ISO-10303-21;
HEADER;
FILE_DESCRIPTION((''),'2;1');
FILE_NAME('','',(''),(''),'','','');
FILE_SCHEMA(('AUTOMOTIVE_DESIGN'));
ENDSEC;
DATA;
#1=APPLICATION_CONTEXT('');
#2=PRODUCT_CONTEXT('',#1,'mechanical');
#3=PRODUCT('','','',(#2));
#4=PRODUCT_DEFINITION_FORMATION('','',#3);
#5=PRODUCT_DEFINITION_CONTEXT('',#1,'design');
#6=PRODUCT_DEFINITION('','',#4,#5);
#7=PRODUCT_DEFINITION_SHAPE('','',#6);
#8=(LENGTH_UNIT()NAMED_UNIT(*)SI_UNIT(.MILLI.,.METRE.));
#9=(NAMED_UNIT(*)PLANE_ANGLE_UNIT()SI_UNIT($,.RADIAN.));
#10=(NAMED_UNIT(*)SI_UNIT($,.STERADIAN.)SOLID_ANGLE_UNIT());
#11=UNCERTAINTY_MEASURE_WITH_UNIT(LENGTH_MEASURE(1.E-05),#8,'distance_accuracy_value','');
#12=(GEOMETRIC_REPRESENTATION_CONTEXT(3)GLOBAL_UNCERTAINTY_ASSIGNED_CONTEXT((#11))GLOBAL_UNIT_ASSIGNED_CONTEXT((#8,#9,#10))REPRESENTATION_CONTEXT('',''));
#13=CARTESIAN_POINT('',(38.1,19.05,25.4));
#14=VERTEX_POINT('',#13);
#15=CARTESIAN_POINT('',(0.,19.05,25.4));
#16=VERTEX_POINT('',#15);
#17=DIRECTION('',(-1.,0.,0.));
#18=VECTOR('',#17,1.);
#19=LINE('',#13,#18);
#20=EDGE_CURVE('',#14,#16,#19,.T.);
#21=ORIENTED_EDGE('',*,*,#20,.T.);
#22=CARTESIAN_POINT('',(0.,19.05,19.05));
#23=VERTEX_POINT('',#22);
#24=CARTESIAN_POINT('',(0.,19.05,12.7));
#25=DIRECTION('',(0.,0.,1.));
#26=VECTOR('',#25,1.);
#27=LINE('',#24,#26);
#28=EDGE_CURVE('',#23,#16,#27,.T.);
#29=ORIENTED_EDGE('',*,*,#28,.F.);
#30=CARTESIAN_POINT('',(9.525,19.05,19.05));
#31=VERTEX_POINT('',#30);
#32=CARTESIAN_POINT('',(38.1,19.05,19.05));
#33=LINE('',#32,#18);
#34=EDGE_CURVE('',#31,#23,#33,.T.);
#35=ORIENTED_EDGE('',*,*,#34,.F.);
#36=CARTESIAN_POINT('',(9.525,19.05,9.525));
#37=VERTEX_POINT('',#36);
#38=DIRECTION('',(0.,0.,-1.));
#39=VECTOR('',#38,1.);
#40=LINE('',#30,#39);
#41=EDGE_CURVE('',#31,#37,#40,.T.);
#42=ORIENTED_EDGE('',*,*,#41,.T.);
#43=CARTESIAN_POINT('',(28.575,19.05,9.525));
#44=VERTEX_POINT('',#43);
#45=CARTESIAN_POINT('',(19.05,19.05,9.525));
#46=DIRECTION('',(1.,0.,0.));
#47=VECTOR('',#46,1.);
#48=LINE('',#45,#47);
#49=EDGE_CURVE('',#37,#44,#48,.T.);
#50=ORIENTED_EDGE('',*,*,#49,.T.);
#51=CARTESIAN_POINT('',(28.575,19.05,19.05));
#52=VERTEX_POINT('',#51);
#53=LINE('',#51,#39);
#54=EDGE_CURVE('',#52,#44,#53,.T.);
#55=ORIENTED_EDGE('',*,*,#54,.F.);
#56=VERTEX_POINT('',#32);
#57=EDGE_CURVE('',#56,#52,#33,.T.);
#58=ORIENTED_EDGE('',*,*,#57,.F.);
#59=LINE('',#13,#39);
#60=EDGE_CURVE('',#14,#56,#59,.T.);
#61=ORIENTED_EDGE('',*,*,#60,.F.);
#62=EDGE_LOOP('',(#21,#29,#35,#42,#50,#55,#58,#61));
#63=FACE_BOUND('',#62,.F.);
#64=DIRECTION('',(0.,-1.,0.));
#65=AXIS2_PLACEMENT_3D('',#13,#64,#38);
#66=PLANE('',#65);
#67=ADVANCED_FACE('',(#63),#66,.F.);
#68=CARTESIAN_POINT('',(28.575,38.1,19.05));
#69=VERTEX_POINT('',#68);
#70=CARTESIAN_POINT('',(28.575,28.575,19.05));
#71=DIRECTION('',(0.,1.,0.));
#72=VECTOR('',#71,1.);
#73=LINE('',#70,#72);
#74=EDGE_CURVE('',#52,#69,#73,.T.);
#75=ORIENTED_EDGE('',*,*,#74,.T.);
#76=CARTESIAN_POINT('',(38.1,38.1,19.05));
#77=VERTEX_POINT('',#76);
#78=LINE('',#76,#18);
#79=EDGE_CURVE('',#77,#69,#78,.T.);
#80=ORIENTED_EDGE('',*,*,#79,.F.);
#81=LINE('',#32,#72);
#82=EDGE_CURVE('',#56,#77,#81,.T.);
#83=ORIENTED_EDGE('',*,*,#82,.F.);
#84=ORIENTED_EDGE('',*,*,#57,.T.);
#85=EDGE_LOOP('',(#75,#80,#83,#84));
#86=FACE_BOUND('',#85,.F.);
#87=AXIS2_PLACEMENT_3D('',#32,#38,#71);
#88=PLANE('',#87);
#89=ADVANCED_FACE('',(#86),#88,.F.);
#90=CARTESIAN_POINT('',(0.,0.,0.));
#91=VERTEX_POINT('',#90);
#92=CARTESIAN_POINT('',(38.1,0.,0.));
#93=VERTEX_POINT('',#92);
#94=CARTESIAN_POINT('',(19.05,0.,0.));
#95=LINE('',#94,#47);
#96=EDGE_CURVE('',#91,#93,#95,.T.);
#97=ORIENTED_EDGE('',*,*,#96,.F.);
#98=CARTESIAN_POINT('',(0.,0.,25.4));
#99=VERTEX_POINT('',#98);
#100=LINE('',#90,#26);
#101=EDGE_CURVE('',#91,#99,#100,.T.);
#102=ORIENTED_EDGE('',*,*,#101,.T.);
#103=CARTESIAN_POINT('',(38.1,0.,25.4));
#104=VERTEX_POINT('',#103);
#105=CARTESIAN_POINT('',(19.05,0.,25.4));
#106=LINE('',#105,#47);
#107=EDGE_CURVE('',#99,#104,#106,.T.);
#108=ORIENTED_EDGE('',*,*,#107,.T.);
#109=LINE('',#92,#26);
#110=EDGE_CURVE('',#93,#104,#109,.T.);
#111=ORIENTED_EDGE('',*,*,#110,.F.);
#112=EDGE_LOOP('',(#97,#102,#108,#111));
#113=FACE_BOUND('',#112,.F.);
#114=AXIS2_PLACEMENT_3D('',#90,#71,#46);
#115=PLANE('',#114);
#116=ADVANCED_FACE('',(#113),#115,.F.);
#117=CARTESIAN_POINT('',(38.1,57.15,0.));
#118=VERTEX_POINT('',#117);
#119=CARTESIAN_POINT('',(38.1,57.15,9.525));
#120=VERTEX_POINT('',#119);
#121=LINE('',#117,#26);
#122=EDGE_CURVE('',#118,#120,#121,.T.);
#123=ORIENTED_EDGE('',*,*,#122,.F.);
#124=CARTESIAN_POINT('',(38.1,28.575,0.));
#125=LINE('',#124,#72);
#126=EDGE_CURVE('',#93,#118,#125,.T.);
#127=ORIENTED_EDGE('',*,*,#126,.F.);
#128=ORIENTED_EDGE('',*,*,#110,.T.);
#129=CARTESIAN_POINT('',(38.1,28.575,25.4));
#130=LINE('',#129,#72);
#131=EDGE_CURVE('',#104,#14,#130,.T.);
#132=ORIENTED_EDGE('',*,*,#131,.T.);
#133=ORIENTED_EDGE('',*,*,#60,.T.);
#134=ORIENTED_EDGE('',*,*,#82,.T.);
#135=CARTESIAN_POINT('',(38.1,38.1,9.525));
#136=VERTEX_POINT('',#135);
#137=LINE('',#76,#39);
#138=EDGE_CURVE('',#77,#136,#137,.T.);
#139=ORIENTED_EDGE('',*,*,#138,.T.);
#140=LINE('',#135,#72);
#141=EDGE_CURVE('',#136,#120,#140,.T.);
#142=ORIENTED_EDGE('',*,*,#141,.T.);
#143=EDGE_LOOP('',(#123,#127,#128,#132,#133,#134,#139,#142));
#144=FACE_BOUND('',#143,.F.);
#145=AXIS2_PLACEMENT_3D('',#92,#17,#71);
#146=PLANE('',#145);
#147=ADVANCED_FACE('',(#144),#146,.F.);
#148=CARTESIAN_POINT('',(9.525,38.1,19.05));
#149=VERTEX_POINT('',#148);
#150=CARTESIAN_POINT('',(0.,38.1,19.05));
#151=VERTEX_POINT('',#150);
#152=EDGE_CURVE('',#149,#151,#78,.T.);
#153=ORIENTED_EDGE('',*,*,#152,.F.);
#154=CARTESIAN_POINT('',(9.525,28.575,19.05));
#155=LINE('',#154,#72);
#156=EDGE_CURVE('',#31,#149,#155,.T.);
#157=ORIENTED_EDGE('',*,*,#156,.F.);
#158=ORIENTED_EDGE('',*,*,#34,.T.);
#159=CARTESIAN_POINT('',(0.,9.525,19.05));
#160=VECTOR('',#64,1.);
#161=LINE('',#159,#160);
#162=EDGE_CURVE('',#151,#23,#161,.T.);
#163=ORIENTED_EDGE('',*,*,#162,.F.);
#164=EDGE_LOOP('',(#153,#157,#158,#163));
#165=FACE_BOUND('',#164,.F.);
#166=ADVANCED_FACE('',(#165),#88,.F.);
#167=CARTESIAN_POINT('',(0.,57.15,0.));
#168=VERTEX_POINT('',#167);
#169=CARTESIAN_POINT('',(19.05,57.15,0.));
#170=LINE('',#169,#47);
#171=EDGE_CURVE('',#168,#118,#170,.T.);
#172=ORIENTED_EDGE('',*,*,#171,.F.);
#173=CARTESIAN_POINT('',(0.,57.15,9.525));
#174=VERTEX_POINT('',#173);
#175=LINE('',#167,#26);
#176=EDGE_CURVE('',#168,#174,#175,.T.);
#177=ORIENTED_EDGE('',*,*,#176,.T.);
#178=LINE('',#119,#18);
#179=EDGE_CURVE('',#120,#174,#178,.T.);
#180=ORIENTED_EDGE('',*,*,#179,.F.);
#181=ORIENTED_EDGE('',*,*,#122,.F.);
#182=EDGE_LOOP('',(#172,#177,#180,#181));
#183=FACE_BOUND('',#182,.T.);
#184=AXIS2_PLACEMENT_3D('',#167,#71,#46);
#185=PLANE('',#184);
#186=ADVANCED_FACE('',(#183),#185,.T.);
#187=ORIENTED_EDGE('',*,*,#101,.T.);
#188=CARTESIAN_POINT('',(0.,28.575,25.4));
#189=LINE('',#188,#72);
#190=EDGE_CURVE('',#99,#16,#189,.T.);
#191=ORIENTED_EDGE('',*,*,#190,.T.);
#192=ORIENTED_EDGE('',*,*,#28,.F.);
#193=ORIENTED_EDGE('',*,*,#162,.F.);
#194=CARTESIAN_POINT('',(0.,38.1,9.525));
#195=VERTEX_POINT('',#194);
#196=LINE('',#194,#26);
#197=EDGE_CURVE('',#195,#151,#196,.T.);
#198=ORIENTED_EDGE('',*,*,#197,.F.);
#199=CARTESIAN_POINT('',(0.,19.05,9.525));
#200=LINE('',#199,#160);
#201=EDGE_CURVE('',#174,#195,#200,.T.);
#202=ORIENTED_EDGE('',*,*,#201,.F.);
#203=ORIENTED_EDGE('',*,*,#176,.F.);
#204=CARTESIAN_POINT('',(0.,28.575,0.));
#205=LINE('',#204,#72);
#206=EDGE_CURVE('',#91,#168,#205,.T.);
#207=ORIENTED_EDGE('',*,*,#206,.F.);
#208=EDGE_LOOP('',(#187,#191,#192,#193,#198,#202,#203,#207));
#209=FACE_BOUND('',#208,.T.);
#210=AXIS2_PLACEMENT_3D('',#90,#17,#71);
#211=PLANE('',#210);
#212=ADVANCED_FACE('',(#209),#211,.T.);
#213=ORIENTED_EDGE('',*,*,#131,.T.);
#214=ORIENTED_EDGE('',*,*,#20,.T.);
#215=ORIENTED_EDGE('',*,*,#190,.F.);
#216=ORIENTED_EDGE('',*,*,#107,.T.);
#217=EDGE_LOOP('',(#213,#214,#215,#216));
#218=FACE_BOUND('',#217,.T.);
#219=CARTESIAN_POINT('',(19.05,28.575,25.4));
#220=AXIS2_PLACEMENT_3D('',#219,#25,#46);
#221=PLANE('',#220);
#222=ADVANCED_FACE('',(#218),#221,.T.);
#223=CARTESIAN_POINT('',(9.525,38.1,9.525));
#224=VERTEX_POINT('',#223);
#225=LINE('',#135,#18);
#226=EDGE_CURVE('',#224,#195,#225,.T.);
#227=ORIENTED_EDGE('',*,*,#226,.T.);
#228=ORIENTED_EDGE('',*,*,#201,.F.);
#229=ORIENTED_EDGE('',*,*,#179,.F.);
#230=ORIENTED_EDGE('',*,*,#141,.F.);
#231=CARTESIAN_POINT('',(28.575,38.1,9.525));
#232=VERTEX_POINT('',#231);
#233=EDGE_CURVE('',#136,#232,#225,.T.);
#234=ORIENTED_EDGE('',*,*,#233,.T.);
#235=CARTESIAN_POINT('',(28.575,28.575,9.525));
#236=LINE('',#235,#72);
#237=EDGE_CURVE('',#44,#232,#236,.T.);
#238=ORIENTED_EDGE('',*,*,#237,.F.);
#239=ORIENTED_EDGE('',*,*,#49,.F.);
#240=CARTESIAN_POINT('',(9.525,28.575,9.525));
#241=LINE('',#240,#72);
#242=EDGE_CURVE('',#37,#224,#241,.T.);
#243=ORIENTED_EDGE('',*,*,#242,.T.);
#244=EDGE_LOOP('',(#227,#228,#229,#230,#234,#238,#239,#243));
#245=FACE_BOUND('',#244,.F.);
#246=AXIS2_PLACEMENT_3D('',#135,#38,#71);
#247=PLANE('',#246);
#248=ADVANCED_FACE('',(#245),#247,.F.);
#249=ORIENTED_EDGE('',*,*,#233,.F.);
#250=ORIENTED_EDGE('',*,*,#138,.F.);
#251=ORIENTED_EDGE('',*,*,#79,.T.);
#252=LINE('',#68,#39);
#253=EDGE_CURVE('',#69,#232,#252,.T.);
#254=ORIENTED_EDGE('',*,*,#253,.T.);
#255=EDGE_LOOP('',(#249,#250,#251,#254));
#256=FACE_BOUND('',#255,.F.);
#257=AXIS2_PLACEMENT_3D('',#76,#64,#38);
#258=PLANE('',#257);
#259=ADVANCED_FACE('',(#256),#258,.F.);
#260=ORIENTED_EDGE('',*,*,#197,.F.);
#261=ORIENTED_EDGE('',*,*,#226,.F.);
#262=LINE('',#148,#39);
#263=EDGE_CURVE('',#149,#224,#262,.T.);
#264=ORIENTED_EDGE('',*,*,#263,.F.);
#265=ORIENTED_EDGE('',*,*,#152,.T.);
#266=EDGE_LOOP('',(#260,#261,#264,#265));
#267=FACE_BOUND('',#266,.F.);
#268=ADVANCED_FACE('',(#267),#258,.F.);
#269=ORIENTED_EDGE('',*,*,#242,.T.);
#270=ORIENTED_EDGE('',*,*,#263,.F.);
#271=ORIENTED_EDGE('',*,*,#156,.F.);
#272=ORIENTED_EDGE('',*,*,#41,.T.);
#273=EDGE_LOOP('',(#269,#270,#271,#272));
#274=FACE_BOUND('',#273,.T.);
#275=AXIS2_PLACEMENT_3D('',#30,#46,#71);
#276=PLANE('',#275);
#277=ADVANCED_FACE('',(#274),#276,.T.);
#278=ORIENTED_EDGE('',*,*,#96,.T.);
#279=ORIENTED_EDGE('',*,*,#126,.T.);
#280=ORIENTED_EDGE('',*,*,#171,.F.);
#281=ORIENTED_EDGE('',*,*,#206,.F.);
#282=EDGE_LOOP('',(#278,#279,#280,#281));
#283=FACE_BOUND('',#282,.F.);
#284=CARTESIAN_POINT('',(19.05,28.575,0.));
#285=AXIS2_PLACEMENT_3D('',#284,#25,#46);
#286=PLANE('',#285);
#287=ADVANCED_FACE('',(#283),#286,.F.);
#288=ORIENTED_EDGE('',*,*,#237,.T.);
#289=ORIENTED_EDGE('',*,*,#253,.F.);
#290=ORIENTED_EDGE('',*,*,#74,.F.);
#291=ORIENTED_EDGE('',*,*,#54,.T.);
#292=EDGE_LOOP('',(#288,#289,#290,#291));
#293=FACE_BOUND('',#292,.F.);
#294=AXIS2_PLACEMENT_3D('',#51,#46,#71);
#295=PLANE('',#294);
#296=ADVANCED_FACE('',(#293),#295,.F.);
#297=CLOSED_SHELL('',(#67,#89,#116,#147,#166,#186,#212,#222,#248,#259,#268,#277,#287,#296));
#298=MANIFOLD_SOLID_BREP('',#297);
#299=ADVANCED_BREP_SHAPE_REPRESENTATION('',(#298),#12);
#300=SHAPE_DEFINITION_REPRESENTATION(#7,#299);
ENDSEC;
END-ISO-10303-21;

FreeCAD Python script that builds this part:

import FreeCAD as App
import Part
import Sketcher
Q = App.Units.Quantity


def add_polygon(sketch, points):
    """Adds a closed chain of lines whose ends are joined by coincident constraints."""
    first, n = sketch.GeometryCount, len(points)
    for a, b in zip(points, points[1:] + points[:1]):
        sketch.addGeometry(Part.LineSegment(App.Vector(*a, 0), App.Vector(*b, 0)), False)
    for i in range(n):
        sketch.addConstraint(Sketcher.Constraint("Coincident", first + i, 2, first + (i + 1) % n, 1))

doc = App.newDocument("Part")
body = doc.addObject("PartDesign::Body", "Body")

# Sketch on XY plane
sketch1 = body.newObject("Sketcher::SketchObject", "Sketch")
sketch1.AttachmentSupport = (doc.getObject("XY_Plane"), [""])
sketch1.MapMode = "FlatFace"
add_polygon(sketch1, [(0, 57), (0, 0), (38, 0), (38, 57)])  # lines 0-3
sketch1.addConstraint(Sketcher.Constraint("Vertical", 0))
sketch1.addConstraint(Sketcher.Constraint("Horizontal", 1))
sketch1.addConstraint(Sketcher.Constraint("Vertical", 2))
sketch1.addConstraint(Sketcher.Constraint("Horizontal", 3))
sketch1.addConstraint(Sketcher.Constraint("Coincident", 0, 2, -1, 1))
sketch1.addConstraint(Sketcher.Constraint("DistanceX", 1, 1, 1, 2, Q("1.5 in")))
sketch1.addConstraint(Sketcher.Constraint("DistanceY", 0, 2, 0, 1, Q("2.25 in")))
pad1 = body.newObject("PartDesign::Pad", "Pad")
pad1.Profile = sketch1
pad1.Length = Q("1 in")

# Sketch on YZ plane
sketch2 = body.newObject("Sketcher::SketchObject", "Sketch001")
sketch2.AttachmentSupport = (doc.getObject("YZ_Plane"), [""])
sketch2.MapMode = "FlatFace"
sketch2.AttachmentOffset = App.Placement(App.Vector(0, 0, 1.5 * 25.4), App.Rotation())
add_polygon(sketch2, [(57, 25), (19, 25), (19, 19), (38, 19), (38, 10), (57, 10)])  # lines 0-5
sketch2.addConstraint(Sketcher.Constraint("Horizontal", 0))
sketch2.addConstraint(Sketcher.Constraint("Vertical", 1))
sketch2.addConstraint(Sketcher.Constraint("Horizontal", 2))
sketch2.addConstraint(Sketcher.Constraint("Vertical", 3))
sketch2.addConstraint(Sketcher.Constraint("Horizontal", 4))
sketch2.addConstraint(Sketcher.Constraint("Vertical", 5))
sketch2.addConstraint(Sketcher.Constraint("Equal", 2, 4))
sketch2.addConstraint(Sketcher.Constraint("DistanceX", 0, 2, 0, 1, Q("1.5 in")))
sketch2.addConstraint(Sketcher.Constraint("DistanceY", -1, 1, 0, 2, Q("1 in")))
sketch2.addConstraint(Sketcher.Constraint("DistanceY", 1, 2, 1, 1, Q("0.25 in")))
sketch2.addConstraint(Sketcher.Constraint("DistanceX", -1, 1, 2, 2, Q("1.5 in")))
sketch2.addConstraint(Sketcher.Constraint("DistanceY", 3, 2, 3, 1, Q("0.375 in")))
pocket1 = body.newObject("PartDesign::Pocket", "Pocket")
pocket1.Profile = sketch2
pocket1.Type = "ThroughAll"

# Sketch on XY plane
sketch3 = body.newObject("Sketcher::SketchObject", "Sketch002")
sketch3.AttachmentSupport = (doc.getObject("XY_Plane"), [""])
sketch3.MapMode = "FlatFace"
sketch3.AttachmentOffset = App.Placement(App.Vector(0, 0, 0.75 * 25.4), App.Rotation())
add_polygon(sketch3, [(10, 38), (10, 19), (29, 19), (29, 38)])  # lines 0-3
sketch3.addConstraint(Sketcher.Constraint("Vertical", 0))
sketch3.addConstraint(Sketcher.Constraint("Horizontal", 1))
sketch3.addConstraint(Sketcher.Constraint("Vertical", 2))
sketch3.addConstraint(Sketcher.Constraint("Horizontal", 3))
sketch3.addConstraint(Sketcher.Constraint("Equal", 3, 0))
sketch3.addConstraint(Sketcher.Constraint("DistanceX", 1, 1, 1, 2, Q("0.75 in")))
sketch3.addConstraint(Sketcher.Constraint("DistanceY", -1, 1, 2, 2, Q("1.5 in")))
sketch3.addConstraint(Sketcher.Constraint("DistanceX", -1, 1, 0, 2, Q("0.375 in")))
pocket2 = body.newObject("PartDesign::Pocket", "Pocket001")
pocket2.Profile = sketch3
pocket2.Length = Q("0.375 in")

doc.recompute()
